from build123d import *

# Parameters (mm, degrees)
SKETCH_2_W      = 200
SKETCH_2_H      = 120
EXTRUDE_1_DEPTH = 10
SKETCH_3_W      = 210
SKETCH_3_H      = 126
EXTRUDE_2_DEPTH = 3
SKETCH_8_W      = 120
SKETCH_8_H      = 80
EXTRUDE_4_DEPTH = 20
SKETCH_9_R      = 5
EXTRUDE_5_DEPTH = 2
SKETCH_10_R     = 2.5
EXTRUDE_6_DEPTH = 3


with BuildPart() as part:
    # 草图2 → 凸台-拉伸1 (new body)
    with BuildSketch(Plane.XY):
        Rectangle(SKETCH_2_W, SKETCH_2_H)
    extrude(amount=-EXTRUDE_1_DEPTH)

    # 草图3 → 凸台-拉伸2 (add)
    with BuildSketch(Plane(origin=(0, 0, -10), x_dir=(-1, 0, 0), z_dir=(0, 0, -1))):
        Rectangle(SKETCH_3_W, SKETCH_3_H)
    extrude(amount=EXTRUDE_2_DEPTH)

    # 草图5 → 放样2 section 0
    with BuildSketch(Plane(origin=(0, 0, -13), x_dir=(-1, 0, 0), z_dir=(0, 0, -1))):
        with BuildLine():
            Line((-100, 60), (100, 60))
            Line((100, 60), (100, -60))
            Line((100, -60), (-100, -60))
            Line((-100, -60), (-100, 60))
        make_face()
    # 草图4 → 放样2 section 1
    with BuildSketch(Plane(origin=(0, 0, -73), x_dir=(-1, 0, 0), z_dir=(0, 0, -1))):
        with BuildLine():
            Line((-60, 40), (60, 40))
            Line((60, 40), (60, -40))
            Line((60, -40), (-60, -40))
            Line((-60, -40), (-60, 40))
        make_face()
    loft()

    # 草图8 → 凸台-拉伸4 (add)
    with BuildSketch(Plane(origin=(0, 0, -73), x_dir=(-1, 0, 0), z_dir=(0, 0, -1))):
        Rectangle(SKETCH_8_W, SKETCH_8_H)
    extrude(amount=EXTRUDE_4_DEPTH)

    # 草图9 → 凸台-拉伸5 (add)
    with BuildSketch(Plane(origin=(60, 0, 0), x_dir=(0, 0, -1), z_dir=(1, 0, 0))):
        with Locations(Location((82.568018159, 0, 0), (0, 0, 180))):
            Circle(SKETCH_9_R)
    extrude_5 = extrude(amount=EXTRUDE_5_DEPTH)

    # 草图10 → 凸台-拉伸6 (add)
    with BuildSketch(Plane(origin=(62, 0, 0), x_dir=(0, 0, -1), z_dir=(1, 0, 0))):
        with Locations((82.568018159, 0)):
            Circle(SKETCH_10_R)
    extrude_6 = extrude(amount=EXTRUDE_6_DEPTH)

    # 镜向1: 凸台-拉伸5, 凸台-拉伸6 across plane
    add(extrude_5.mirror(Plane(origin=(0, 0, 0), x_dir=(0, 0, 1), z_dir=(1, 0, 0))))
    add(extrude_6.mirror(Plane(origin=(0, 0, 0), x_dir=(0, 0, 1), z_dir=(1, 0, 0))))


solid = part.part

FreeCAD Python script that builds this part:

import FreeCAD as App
import Part
import Sketcher
from FreeCAD import Vector
Q = App.Units.Quantity


def add_polygon(sketch, points):
    """Adds a closed chain of lines whose ends are joined by coincident constraints."""
    first, n = sketch.GeometryCount, len(points)
    for a, b in zip(points, points[1:] + points[:1]):
        sketch.addGeometry(Part.LineSegment(App.Vector(*a, 0), App.Vector(*b, 0)), False)
    for i in range(n):
        sketch.addConstraint(Sketcher.Constraint("Coincident", first + i, 2, first + (i + 1) % n, 1))

doc = App.newDocument("Part")
body = doc.addObject("PartDesign::Body", "Body")

sketch1 = body.newObject("Sketcher::SketchObject", "Sketch")
sketch1.AttachmentSupport = (doc.getObject("XY_Plane"), [""])
sketch1.MapMode = "FlatFace"
add_polygon(sketch1, [(-100, 60), (-100, -60), (100, -60), (100, 60)])
sketch1.addConstraint([
    Sketcher.Constraint("Vertical", 0),
    Sketcher.Constraint("Horizontal", 1),
    Sketcher.Constraint("Vertical", 2),
    Sketcher.Constraint("Horizontal", 3),
    Sketcher.Constraint("Symmetric", 0, 2, 2, 2, -1, 1),
    Sketcher.Constraint("DistanceX", 1, 1, 1, 2, Q("200 mm")),
    Sketcher.Constraint("DistanceY", 0, 2, 0, 1, Q("120 mm")),
])
pad1 = body.newObject("PartDesign::Pad", "Pad")
pad1.Profile = sketch1
pad1.Length = 10
pad1.Reversed = True

sketch2 = body.newObject("Sketcher::SketchObject", "Sketch001")
sketch2.AttachmentSupport = (doc.getObject("XY_Plane"), [""])
sketch2.MapMode = "FlatFace"
sketch2.AttachmentOffset = App.Placement(Vector(0, 0, -10), App.Rotation())
add_polygon(sketch2, [(105, 63), (105, -63), (-105, -63), (-105, 63)])
sketch2.addConstraint([
    Sketcher.Constraint("Vertical", 0),
    Sketcher.Constraint("Horizontal", 1),
    Sketcher.Constraint("Vertical", 2),
    Sketcher.Constraint("Horizontal", 3),
    Sketcher.Constraint("Symmetric", 0, 2, 2, 2, -1, 1),
    Sketcher.Constraint("DistanceX", 1, 2, 1, 1, Q("210 mm")),
    Sketcher.Constraint("DistanceY", 0, 2, 0, 1, Q("126 mm")),
])
pad2 = body.newObject("PartDesign::Pad", "Pad001")
pad2.Profile = sketch2
pad2.Length = 3
pad2.Reversed = True

sketch3 = body.newObject("Sketcher::SketchObject", "Sketch002")
sketch3.AttachmentSupport = (doc.getObject("XY_Plane"), [""])
sketch3.MapMode = "FlatFace"
sketch3.AttachmentOffset = App.Placement(Vector(0, 0, -13), App.Rotation())
add_polygon(sketch3, [(-100, 60), (100, 60), (100, -60), (-100, -60)])
sketch3.addConstraint([
    Sketcher.Constraint("Horizontal", 0),
    Sketcher.Constraint("Vertical", 1),
    Sketcher.Constraint("Horizontal", 2),
    Sketcher.Constraint("Vertical", 3),
    Sketcher.Constraint("Symmetric", 0, 2, 2, 2, -1, 1),
    Sketcher.Constraint("DistanceX", 0, 1, 0, 2, Q("200 mm")),
    Sketcher.Constraint("DistanceY", 1, 2, 1, 1, Q("120 mm")),
])

sketch4 = body.newObject("Sketcher::SketchObject", "Sketch003")
sketch4.AttachmentSupport = (doc.getObject("XY_Plane"), [""])
sketch4.MapMode = "FlatFace"
sketch4.AttachmentOffset = App.Placement(Vector(0, 0, -73), App.Rotation())
add_polygon(sketch4, [(-60, 40), (60, 40), (60, -40), (-60, -40)])
sketch4.addConstraint([
    Sketcher.Constraint("Horizontal", 0),
    Sketcher.Constraint("Vertical", 1),
    Sketcher.Constraint("Horizontal", 2),
    Sketcher.Constraint("Vertical", 3),
    Sketcher.Constraint("Symmetric", 0, 2, 2, 2, -1, 1),
    Sketcher.Constraint("DistanceX", 0, 1, 0, 2, Q("120 mm")),
    Sketcher.Constraint("DistanceY", 1, 2, 1, 1, Q("80 mm")),
])

additiveloft = body.newObject("PartDesign::AdditiveLoft", "AdditiveLoft")
additiveloft.Profile = sketch3
additiveloft.Sections = [sketch4]

sketch5 = body.newObject("Sketcher::SketchObject", "Sketch004")
sketch5.AttachmentSupport = (doc.getObject("XY_Plane"), [""])
sketch5.MapMode = "FlatFace"
sketch5.AttachmentOffset = App.Placement(Vector(0, 0, -73), App.Rotation())
add_polygon(sketch5, [(60, 40), (60, -40), (-60, -40), (-60, 40)])
sketch5.addConstraint([
    Sketcher.Constraint("Vertical", 0),
    Sketcher.Constraint("Horizontal", 1),
    Sketcher.Constraint("Vertical", 2),
    Sketcher.Constraint("Horizontal", 3),
    Sketcher.Constraint("Symmetric", 0, 2, 2, 2, -1, 1),
    Sketcher.Constraint("DistanceX", 1, 2, 1, 1, Q("120 mm")),
    Sketcher.Constraint("DistanceY", 0, 2, 0, 1, Q("80 mm")),
])
pad3 = body.newObject("PartDesign::Pad", "Pad002")
pad3.Profile = sketch5
pad3.Length = 20
pad3.Reversed = True

sketch6 = body.newObject("Sketcher::SketchObject", "Sketch005")
sketch6.AttachmentSupport = (doc.getObject("YZ_Plane"), [""])
sketch6.MapMode = "FlatFace"
sketch6.AttachmentOffset = App.Placement(Vector(0, 0, 60), App.Rotation())
sketch6.addGeometry(Part.Circle(Vector(0, -82.568018, 0), Vector(0, 0, 1), 5), False)
sketch6.addConstraint([
    Sketcher.Constraint("PointOnObject", 0, 3, -2),
    Sketcher.Constraint("Diameter", 0, Q("10 mm")),
    Sketcher.Constraint("DistanceY", 0, 3, -1, 1, Q("82.568018 mm")),
])
pad4 = body.newObject("PartDesign::Pad", "Pad003")
pad4.Profile = sketch6
pad4.Length = 2

sketch7 = body.newObject("Sketcher::SketchObject", "Sketch006")
sketch7.AttachmentSupport = (doc.getObject("YZ_Plane"), [""])
sketch7.MapMode = "FlatFace"
sketch7.AttachmentOffset = App.Placement(Vector(0, 0, 62), App.Rotation())
sketch7.addGeometry(Part.Circle(Vector(0, -82.568018, 0), Vector(0, 0, 1), 2.5), False)
sketch7.addConstraint([
    Sketcher.Constraint("PointOnObject", 0, 3, -2),
    Sketcher.Constraint("Diameter", 0, Q("5 mm")),
    Sketcher.Constraint("DistanceY", 0, 3, -1, 1, Q("82.568018 mm")),
])
pad5 = body.newObject("PartDesign::Pad", "Pad004")
pad5.Profile = sketch7
pad5.Length = 3
doc.recompute()

mirrored = body.newObject("PartDesign::Mirrored", "Mirrored")
mirrored.Originals = [pad4, pad5]
mirrored.MirrorPlane = (doc.getObject("YZ_Plane"), [""])
body.Tip = mirrored

doc.recompute()
